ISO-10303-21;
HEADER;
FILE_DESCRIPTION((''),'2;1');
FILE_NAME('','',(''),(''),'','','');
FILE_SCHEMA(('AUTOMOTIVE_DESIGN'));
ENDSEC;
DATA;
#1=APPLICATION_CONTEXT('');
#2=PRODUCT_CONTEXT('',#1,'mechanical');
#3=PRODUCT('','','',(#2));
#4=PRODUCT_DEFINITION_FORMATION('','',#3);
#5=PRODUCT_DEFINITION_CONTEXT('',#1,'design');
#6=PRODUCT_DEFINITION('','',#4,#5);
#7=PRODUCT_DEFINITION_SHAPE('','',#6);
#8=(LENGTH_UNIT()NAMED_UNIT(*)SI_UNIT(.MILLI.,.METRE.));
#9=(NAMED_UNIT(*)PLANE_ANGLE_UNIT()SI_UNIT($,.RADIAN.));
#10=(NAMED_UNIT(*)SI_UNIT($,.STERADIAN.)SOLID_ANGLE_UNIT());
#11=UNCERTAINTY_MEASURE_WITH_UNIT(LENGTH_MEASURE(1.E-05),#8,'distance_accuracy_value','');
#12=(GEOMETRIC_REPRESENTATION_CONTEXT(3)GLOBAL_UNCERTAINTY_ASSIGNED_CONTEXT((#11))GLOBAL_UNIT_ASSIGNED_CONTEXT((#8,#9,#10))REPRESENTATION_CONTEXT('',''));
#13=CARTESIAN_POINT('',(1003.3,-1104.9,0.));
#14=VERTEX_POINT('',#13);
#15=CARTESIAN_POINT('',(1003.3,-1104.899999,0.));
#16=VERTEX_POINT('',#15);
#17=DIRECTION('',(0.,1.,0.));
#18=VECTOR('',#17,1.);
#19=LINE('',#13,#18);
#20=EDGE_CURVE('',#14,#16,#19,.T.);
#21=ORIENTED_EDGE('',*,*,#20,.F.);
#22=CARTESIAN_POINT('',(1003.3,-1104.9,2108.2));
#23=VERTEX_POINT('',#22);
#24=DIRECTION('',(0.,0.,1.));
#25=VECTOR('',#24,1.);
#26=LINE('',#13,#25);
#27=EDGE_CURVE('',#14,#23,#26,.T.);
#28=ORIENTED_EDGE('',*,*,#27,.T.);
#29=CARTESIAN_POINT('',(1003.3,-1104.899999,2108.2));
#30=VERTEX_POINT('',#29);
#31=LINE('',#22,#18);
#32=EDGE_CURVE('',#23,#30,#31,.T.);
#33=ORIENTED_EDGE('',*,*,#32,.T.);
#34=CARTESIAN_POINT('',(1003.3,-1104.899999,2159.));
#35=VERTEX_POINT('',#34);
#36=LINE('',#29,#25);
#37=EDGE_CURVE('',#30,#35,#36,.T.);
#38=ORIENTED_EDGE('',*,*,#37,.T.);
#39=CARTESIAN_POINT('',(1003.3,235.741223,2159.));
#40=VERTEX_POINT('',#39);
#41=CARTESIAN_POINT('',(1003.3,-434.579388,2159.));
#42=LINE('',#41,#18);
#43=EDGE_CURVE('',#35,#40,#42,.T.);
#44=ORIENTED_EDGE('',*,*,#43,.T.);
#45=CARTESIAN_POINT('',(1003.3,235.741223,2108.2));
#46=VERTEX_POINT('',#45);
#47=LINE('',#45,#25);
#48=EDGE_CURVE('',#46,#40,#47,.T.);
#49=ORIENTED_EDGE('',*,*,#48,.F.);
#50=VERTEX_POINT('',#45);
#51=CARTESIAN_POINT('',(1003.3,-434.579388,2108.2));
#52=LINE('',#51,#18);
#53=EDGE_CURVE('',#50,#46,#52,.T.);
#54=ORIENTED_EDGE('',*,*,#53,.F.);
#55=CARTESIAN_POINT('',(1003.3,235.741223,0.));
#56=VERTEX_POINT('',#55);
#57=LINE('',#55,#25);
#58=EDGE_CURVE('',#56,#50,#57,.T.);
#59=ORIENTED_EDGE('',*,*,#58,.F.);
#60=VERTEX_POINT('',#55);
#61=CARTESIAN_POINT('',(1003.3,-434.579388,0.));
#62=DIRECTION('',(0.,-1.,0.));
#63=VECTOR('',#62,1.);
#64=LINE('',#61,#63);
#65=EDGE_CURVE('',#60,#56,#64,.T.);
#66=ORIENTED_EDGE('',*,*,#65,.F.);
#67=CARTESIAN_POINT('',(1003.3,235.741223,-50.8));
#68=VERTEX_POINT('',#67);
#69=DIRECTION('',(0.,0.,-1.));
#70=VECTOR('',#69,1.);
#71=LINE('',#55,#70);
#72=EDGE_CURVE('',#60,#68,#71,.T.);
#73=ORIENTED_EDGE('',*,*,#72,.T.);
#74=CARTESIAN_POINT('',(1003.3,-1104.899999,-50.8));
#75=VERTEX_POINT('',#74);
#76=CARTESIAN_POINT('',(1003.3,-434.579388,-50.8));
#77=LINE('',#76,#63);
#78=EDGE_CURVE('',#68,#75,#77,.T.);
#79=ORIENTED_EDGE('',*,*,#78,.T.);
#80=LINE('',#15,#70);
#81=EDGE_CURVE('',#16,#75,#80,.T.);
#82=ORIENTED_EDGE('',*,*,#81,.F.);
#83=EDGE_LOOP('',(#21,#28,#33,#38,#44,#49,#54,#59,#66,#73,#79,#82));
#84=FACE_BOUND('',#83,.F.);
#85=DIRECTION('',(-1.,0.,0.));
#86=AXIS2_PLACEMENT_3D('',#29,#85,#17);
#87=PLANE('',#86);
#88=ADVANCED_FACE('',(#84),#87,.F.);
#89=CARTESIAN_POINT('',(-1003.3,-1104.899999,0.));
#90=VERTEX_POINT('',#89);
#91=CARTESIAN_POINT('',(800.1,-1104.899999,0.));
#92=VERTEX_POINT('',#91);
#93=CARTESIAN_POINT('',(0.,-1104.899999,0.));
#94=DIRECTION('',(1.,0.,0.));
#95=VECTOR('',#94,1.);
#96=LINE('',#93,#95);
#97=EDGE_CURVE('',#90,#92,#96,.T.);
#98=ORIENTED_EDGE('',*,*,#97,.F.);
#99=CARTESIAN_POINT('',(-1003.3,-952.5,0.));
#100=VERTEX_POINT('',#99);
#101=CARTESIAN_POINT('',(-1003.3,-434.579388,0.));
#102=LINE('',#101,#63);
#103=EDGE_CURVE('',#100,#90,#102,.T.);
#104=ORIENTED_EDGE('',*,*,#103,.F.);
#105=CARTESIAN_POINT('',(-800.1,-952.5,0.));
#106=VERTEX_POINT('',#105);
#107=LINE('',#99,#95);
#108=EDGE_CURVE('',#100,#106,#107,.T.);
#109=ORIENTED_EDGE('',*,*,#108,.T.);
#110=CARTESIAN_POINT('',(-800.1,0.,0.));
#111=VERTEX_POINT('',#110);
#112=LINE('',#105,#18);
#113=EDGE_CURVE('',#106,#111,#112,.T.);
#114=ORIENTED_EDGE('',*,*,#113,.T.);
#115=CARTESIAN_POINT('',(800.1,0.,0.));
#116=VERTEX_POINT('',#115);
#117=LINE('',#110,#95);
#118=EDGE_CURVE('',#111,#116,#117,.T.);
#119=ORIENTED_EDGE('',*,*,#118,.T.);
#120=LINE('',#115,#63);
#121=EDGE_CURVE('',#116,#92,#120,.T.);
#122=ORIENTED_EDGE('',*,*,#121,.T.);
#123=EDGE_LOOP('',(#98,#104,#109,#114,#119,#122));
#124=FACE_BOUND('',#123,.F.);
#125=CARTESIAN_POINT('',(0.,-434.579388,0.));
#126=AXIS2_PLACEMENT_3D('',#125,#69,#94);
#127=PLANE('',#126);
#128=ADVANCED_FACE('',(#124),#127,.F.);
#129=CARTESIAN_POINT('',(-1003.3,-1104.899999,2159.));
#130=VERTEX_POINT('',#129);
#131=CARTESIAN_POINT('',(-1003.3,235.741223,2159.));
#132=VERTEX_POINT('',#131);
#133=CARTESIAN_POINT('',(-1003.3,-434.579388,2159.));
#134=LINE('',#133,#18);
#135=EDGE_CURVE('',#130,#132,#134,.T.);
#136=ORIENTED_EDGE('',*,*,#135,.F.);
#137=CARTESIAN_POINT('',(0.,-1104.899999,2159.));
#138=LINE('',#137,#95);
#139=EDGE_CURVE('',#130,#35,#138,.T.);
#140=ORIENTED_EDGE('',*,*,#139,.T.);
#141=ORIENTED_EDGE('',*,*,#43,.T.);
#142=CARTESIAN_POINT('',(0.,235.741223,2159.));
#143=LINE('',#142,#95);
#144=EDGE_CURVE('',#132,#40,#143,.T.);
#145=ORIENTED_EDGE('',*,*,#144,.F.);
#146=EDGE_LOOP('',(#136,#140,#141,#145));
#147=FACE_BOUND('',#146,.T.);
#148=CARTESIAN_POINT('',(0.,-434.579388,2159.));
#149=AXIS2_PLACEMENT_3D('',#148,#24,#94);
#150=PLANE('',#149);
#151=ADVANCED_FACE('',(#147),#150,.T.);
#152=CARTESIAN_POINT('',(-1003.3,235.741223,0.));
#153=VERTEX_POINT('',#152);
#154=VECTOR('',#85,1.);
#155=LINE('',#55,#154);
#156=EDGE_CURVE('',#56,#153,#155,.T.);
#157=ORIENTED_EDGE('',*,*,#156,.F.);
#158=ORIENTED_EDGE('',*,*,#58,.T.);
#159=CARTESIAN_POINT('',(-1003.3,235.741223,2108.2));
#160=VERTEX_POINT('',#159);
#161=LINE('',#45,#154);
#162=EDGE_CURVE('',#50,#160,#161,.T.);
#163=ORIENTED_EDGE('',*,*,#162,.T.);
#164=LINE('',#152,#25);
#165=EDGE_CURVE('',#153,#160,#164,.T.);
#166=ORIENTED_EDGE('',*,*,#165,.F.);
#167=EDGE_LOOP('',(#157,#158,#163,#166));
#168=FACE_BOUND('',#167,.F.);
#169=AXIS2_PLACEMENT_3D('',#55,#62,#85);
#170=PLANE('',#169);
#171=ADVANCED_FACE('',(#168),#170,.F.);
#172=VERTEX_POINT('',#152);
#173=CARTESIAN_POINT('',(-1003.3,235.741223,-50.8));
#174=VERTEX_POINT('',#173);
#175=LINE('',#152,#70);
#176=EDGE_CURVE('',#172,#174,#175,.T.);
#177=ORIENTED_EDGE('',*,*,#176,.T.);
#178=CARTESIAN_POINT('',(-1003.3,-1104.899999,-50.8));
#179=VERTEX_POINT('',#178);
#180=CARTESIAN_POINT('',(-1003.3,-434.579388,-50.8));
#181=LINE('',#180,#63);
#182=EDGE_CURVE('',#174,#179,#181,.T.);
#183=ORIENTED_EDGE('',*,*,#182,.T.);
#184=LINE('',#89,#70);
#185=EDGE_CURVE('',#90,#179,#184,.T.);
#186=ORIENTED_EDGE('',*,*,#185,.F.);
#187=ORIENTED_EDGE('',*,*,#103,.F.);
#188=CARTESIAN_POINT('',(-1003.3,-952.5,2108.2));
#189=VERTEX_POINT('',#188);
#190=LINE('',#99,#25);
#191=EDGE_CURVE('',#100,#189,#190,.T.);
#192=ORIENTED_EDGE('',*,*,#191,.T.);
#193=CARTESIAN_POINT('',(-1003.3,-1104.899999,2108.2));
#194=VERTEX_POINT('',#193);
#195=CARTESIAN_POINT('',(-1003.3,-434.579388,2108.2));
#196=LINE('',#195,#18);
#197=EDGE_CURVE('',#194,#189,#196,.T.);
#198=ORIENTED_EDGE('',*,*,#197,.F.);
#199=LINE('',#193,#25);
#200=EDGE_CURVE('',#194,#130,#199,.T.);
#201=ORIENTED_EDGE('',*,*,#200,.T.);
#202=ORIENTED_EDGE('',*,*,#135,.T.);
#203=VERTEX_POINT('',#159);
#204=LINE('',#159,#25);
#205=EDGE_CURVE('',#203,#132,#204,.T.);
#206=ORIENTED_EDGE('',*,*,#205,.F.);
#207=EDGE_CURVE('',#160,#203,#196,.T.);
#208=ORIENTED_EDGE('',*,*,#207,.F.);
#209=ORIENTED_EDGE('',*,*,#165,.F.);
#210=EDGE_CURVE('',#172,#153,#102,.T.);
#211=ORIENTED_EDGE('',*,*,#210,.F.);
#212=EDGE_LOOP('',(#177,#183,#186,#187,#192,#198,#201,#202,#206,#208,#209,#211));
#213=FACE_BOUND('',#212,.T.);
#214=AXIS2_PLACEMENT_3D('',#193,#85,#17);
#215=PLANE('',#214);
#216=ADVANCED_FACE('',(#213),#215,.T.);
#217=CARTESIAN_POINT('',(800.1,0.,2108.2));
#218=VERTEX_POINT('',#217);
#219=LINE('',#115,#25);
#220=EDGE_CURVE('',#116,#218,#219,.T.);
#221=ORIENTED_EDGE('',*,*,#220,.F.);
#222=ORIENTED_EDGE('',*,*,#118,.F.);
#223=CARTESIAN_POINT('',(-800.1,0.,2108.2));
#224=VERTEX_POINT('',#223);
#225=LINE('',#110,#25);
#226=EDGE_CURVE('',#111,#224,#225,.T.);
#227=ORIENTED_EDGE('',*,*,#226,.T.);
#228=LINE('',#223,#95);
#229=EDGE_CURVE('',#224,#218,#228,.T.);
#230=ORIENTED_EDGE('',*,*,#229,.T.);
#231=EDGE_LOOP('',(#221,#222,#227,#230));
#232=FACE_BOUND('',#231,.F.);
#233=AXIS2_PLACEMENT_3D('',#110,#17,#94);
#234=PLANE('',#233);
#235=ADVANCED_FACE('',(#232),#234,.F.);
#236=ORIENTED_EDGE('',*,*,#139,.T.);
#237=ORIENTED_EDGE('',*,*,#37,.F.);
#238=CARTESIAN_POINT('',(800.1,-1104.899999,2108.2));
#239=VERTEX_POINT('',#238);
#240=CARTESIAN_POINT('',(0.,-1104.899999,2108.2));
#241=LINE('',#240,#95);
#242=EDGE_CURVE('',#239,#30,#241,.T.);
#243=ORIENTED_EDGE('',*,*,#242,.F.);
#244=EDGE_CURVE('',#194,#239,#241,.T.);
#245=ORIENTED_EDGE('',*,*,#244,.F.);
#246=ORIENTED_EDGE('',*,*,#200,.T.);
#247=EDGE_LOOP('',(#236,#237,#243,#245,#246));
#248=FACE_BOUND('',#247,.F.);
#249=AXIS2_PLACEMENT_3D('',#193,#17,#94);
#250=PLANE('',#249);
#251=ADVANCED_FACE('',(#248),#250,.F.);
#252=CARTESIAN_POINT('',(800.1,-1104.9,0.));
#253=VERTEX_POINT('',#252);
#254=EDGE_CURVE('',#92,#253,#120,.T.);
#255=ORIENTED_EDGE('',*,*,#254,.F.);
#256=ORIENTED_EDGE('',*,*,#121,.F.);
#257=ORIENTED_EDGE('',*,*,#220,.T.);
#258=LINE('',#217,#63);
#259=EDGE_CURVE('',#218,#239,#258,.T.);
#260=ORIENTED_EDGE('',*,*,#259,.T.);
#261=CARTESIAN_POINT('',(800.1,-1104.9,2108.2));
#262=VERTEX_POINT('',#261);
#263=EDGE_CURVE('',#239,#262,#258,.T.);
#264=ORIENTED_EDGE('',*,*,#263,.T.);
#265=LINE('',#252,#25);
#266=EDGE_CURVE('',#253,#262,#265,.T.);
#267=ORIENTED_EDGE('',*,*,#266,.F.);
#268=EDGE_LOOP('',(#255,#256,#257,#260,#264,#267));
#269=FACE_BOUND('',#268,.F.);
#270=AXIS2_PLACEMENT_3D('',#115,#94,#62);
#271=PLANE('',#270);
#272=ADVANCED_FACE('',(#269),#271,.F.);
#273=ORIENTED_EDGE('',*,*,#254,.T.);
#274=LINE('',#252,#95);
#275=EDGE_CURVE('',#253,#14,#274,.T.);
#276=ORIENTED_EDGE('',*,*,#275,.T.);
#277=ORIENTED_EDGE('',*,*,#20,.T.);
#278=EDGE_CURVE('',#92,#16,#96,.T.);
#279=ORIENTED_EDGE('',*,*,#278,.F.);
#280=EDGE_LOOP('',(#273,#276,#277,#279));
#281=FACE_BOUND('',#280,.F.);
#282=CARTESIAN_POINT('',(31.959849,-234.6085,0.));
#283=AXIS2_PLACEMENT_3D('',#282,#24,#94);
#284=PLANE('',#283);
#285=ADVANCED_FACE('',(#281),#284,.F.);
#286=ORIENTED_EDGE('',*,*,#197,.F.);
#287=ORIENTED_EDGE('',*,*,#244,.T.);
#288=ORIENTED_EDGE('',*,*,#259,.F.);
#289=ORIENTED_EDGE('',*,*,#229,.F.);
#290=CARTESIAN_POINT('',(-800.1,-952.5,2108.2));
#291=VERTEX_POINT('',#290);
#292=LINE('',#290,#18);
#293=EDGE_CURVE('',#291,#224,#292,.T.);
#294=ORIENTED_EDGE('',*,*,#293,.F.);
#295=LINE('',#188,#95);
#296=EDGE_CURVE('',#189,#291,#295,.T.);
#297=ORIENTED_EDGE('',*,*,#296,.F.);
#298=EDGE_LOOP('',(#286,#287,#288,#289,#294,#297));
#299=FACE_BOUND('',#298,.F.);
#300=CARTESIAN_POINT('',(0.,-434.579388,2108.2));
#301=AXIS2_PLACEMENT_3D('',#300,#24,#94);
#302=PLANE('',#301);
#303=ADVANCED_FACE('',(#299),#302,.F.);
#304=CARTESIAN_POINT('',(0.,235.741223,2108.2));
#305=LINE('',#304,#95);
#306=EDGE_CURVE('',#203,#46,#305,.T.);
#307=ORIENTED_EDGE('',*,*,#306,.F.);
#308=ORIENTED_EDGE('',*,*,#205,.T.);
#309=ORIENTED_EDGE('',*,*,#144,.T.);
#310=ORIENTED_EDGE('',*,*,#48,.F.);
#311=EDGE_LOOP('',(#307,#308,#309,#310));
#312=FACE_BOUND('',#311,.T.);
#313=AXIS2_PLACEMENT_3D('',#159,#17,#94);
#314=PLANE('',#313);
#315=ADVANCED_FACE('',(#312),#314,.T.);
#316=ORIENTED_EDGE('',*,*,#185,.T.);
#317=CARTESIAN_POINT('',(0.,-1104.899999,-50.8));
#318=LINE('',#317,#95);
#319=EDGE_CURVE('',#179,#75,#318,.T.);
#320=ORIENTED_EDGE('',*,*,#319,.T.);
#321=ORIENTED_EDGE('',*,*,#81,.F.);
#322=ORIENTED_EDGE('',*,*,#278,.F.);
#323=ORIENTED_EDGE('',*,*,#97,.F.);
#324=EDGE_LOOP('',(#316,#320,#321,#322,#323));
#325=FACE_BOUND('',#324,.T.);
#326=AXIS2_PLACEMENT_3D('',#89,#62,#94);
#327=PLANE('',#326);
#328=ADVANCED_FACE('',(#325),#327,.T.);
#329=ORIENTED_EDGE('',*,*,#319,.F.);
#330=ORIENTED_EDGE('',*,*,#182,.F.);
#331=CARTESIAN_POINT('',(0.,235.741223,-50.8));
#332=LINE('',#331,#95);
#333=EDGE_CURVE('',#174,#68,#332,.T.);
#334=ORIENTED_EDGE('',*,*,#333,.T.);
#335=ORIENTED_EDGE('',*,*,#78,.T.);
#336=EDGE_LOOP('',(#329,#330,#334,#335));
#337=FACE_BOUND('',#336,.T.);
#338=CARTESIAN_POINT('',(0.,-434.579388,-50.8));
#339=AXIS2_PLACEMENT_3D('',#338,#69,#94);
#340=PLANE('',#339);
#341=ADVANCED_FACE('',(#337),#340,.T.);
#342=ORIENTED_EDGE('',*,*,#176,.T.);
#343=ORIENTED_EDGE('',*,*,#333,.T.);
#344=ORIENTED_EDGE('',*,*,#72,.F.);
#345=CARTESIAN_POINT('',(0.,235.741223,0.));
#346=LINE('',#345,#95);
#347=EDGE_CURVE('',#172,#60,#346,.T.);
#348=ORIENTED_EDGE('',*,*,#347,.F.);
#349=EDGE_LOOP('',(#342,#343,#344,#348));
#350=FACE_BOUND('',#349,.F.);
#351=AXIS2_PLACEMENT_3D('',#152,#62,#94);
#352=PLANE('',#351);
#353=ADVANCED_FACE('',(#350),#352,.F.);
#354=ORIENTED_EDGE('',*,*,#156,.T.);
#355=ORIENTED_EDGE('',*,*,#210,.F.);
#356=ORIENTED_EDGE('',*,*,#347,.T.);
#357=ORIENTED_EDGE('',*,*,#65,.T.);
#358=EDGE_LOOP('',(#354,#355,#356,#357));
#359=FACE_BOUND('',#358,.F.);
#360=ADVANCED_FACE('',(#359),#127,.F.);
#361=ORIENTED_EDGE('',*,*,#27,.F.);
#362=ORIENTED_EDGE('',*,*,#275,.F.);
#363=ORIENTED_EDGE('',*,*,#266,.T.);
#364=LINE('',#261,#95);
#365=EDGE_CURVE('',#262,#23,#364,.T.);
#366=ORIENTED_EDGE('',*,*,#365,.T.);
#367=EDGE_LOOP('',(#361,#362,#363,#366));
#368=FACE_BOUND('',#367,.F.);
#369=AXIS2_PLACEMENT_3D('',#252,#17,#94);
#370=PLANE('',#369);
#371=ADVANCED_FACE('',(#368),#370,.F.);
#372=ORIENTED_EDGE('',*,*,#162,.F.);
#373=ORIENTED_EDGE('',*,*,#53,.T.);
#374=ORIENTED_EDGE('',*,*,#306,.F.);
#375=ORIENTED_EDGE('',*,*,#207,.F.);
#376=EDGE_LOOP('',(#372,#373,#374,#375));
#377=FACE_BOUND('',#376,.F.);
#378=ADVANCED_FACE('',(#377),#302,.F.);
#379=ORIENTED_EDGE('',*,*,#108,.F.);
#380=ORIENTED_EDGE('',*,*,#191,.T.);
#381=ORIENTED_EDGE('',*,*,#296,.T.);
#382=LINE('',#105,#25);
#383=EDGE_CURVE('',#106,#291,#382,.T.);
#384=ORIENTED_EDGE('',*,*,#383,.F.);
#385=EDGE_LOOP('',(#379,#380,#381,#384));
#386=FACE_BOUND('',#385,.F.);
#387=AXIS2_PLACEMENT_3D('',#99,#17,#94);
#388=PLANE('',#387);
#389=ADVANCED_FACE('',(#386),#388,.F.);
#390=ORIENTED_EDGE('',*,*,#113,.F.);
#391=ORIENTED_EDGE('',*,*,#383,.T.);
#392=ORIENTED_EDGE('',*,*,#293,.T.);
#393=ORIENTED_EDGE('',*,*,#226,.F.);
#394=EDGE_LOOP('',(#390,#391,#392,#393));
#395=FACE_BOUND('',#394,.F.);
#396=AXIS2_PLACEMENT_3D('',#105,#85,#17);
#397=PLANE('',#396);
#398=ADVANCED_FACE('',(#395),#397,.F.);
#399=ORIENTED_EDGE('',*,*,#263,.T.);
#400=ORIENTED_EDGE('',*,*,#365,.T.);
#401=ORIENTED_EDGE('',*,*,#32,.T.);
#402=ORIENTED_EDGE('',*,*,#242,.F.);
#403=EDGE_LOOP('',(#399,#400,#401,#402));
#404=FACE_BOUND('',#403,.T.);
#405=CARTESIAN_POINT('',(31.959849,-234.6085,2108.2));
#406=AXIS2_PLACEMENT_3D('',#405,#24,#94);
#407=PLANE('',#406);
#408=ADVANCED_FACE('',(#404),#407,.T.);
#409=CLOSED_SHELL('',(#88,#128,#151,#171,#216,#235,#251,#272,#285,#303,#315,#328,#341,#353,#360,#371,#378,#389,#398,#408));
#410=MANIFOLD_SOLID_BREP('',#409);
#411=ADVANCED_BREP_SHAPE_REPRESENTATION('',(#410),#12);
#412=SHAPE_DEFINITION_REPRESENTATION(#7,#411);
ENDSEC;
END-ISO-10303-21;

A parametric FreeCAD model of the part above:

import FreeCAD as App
import Part
import Sketcher

V = App.Vector
Q = App.Units.Quantity

doc = App.newDocument("Part")
body = doc.addObject("PartDesign::Body", "Body")

# Sketch on XY plane
sketch1 = doc.addObject("Sketcher::SketchObject", "Sketch")
body.addObject(sketch1)
sketch1.AttachmentSupport = (doc.XY_Plane, [""])
sketch1.MapMode = "FlatFace"
sketch1.addGeometry([
    Part.LineSegment(V(-800, -952, 0), V(-800, 0, 0)),  # 0
    Part.LineSegment(V(-800, 0, 0), V(800, 0, 0)),  # 1
    Part.LineSegment(V(800, 0, 0), V(800, -1105, 0)),  # 2
    Part.LineSegment(V(800, -1105, 0), V(1003, -1105, 0)),  # 3
    Part.LineSegment(V(1003, -1105, 0), V(1003, 236, 0)),  # 4
    Part.LineSegment(V(1003, 236, 0), V(-1003, 236, 0)),  # 5
    Part.LineSegment(V(-1003, 236, 0), V(-1003, -952, 0)),  # 6
    Part.LineSegment(V(-1003, -952, 0), V(-800, -952, 0)),  # 7
], False)
sketch1.addConstraint([
    Sketcher.Constraint("Coincident", 0, 2, 1, 1),
    Sketcher.Constraint("Coincident", 1, 2, 2, 1),
    Sketcher.Constraint("Coincident", 2, 2, 3, 1),
    Sketcher.Constraint("Coincident", 3, 2, 4, 1),
    Sketcher.Constraint("Coincident", 4, 2, 5, 1),
    Sketcher.Constraint("Coincident", 5, 2, 6, 1),
    Sketcher.Constraint("Coincident", 6, 2, 7, 1),
    Sketcher.Constraint("Coincident", 7, 2, 0, 1),
    Sketcher.Constraint("Vertical", 0),
    Sketcher.Constraint("Horizontal", 1),
    Sketcher.Constraint("Vertical", 2),
    Sketcher.Constraint("Horizontal", 3),
    Sketcher.Constraint("Vertical", 4),
    Sketcher.Constraint("Horizontal", 5),
    Sketcher.Constraint("Vertical", 6),
    Sketcher.Constraint("Horizontal", 7),
    Sketcher.Constraint("Symmetric", 0, 2, 1, 2, -1, 1),
    Sketcher.Constraint("Equal", 3, 7),
    Sketcher.Constraint("DistanceX", 1, 1, 1, 2, Q("63 in")),
    Sketcher.Constraint("DistanceX", 3, 1, 3, 2, Q("8 in")),
    Sketcher.Constraint("DistanceY", 0, 1, 0, 2, Q("37.5 in")),
    Sketcher.Constraint("DistanceY", 2, 2, 2, 1, Q("43.5 in")),
    Sketcher.Constraint("DistanceY", 4, 1, 4, 2, Q("1340.641223 mm")),
])
pad1 = doc.addObject("PartDesign::Pad", "Pad")
body.addObject(pad1)
pad1.Profile = sketch1
pad1.Length = Q("83 in")

# Sketch on XY plane
sketch2 = doc.addObject("Sketcher::SketchObject", "Sketch001")
body.addObject(sketch2)
sketch2.AttachmentSupport = (doc.XY_Plane, [""])
sketch2.MapMode = "FlatFace"
sketch2.addGeometry([
    Part.LineSegment(V(-1003, -1105, 0), V(-1003, 236, 0)),
    Part.LineSegment(V(-1003, 236, 0), V(1003, 236, 0)),
    Part.LineSegment(V(1003, 236, 0), V(1003, -1105, 0)),
    Part.LineSegment(V(1003, -1105, 0), V(-1003, -1105, 0)),
], False)
sketch2.addConstraint([
    Sketcher.Constraint("Coincident", 0, 2, 1, 1),
    Sketcher.Constraint("Coincident", 1, 2, 2, 1),
    Sketcher.Constraint("Coincident", 2, 2, 3, 1),
    Sketcher.Constraint("Coincident", 3, 2, 0, 1),
    Sketcher.Constraint("Vertical", 0),
    Sketcher.Constraint("Horizontal", 1),
    Sketcher.Constraint("Vertical", 2),
    Sketcher.Constraint("Horizontal", 3),
    Sketcher.Constraint("DistanceX", 1, 1, 1, 2, Q("79 in")),
    Sketcher.Constraint("DistanceX", 0, 2, -1, 1, Q("39.5 in")),
    Sketcher.Constraint("DistanceY", 2, 2, -1, 1, Q("43.5 in")),
    Sketcher.Constraint("DistanceY", 0, 1, 0, 2, Q("1340.641223 mm")),
])
pad2 = doc.addObject("PartDesign::Pad", "Pad001")
body.addObject(pad2)
pad2.Profile = sketch2
pad2.Length = Q("2 in")
pad2.Reversed = True

# Sketch on XY plane
sketch3 = doc.addObject("Sketcher::SketchObject", "Sketch002")
body.addObject(sketch3)
sketch3.AttachmentSupport = (doc.XY_Plane, [""])
sketch3.MapMode = "FlatFace"
sketch3.AttachmentOffset = App.Placement(V(0, 0, 83 * 25.4), App.Rotation())
sketch3.addGeometry([
    Part.LineSegment(V(-1003, 236, 0), V(-1003, -1105, 0)),
    Part.LineSegment(V(-1003, -1105, 0), V(1003, -1105, 0)),
    Part.LineSegment(V(1003, -1105, 0), V(1003, 236, 0)),
    Part.LineSegment(V(1003, 236, 0), V(-1003, 236, 0)),
], False)
sketch3.addConstraint([
    Sketcher.Constraint("Coincident", 0, 2, 1, 1),
    Sketcher.Constraint("Coincident", 1, 2, 2, 1),
    Sketcher.Constraint("Coincident", 2, 2, 3, 1),
    Sketcher.Constraint("Coincident", 3, 2, 0, 1),
    Sketcher.Constraint("Vertical", 0),
    Sketcher.Constraint("Horizontal", 1),
    Sketcher.Constraint("Vertical", 2),
    Sketcher.Constraint("Horizontal", 3),
    Sketcher.Constraint("DistanceX", 1, 1, 1, 2, Q("79 in")),
    Sketcher.Constraint("DistanceX", 0, 2, -1, 1, Q("39.5 in")),
    Sketcher.Constraint("DistanceY", 0, 2, -1, 1, Q("43.5 in")),
    Sketcher.Constraint("DistanceY", 0, 2, 0, 1, Q("1340.641223 mm")),
])
pad3 = doc.addObject("PartDesign::Pad", "Pad002")
body.addObject(pad3)
pad3.Profile = sketch3
pad3.Length = Q("2 in")

doc.recompute()
